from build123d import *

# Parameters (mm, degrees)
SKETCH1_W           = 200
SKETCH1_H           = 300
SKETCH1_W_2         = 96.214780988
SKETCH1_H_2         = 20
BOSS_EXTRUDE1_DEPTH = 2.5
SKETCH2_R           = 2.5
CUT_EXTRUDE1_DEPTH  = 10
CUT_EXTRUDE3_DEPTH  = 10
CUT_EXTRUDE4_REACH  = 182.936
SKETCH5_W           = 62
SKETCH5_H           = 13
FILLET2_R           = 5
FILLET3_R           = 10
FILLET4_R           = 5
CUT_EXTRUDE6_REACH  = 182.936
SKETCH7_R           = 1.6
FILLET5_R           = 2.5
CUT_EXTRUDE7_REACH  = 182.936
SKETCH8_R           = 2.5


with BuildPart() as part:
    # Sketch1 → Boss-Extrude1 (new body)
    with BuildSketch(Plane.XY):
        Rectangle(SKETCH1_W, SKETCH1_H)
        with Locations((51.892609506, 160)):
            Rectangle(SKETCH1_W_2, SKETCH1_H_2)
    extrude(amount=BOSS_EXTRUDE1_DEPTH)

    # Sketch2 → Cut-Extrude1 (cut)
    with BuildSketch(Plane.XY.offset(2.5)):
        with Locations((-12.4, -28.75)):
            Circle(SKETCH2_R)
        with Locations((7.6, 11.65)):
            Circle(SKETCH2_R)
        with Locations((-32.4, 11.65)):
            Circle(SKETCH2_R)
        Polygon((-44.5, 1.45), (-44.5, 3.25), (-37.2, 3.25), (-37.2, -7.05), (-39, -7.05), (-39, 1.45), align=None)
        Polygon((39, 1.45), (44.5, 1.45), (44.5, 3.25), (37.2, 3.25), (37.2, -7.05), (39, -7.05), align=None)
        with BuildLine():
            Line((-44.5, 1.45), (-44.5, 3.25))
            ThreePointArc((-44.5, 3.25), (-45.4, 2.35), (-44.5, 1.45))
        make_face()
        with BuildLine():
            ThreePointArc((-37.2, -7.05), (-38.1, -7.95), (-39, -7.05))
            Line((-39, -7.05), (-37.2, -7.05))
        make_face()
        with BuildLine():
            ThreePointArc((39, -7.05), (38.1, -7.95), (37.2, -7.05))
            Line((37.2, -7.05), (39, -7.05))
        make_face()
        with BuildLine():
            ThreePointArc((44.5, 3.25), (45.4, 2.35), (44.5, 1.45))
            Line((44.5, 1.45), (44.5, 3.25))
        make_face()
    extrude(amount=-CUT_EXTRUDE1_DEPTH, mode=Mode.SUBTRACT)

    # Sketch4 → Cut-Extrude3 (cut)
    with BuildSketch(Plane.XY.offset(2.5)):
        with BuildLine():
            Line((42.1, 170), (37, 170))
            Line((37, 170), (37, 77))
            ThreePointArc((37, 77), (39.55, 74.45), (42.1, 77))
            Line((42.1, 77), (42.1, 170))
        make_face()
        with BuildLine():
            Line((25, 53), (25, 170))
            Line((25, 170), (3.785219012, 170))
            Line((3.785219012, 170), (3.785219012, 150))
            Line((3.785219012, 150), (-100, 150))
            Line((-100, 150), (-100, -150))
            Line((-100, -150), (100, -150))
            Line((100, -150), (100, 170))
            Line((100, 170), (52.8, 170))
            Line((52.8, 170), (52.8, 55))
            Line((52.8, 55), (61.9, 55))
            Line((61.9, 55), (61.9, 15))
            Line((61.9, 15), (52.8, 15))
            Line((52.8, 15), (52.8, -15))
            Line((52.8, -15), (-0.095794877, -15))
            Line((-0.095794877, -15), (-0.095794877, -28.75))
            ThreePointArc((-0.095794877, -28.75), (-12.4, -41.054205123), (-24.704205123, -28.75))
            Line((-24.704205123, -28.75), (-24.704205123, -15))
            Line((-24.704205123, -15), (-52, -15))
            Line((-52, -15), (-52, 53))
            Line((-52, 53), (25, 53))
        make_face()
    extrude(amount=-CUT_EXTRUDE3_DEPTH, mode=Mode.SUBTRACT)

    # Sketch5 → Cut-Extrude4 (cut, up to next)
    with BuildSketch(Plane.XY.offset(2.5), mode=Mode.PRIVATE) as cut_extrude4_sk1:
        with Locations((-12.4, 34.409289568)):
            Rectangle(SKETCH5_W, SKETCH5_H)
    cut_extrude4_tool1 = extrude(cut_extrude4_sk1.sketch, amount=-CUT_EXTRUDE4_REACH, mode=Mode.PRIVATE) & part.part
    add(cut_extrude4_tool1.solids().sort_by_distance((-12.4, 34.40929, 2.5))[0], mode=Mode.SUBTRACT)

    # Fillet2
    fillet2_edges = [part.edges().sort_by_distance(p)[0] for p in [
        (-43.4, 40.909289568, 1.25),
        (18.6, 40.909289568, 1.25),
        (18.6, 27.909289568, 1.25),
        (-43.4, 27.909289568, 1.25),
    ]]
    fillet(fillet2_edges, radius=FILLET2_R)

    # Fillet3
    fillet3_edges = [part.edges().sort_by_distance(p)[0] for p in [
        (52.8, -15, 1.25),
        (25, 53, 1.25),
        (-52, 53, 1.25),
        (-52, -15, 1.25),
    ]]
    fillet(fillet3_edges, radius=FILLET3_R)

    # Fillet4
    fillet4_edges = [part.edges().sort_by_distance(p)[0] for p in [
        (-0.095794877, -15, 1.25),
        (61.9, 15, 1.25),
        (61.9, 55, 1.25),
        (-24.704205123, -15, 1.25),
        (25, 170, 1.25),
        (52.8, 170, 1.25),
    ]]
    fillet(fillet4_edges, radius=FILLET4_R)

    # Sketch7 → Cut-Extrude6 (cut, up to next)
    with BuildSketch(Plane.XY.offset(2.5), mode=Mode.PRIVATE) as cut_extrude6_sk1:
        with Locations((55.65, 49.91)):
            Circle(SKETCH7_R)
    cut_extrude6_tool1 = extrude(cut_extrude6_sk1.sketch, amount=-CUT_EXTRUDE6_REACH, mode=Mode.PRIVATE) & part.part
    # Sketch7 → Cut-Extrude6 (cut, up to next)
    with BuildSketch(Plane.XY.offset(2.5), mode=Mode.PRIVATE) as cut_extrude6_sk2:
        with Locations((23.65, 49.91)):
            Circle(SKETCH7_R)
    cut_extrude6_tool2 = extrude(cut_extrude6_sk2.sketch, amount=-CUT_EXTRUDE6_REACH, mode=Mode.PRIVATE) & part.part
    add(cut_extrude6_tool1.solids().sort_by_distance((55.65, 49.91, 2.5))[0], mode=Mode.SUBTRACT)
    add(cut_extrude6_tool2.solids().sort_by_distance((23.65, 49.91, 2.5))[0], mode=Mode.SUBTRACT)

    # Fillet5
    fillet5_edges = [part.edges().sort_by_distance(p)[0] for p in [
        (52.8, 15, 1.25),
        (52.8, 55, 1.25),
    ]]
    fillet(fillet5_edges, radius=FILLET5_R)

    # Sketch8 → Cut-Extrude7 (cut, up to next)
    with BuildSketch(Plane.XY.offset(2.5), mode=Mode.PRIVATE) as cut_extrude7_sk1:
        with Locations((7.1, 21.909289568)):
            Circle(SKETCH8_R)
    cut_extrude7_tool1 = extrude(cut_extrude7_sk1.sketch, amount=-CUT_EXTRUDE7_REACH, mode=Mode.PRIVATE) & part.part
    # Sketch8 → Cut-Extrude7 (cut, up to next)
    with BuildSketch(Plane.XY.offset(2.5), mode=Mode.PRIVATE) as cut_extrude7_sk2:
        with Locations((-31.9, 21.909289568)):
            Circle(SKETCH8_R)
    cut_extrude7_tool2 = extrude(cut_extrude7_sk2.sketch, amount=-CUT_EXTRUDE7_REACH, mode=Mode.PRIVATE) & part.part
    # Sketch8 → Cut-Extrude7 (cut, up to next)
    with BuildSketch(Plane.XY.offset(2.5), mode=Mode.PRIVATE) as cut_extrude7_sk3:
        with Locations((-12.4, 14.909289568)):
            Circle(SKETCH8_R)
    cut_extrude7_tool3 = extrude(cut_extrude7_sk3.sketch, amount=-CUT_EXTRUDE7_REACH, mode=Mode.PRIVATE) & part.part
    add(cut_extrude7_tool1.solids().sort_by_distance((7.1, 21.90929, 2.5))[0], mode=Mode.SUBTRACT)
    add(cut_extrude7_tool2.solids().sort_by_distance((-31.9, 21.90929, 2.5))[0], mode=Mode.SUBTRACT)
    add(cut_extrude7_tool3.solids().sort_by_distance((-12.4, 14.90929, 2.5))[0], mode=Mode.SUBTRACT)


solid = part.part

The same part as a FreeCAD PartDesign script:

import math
import FreeCAD as App
import Part
import Sketcher
Q = App.Units.Quantity


def edges_at(feature, points):
    """Names of the edges that pass closest to the given points."""
    edges = feature.Shape.Edges
    near = lambda p: min(range(len(edges)), key=lambda i: edges[i].distToShape(Part.Vertex(*p))[0])
    return sorted({f"Edge{near(p) + 1}" for p in points})

doc = App.newDocument("Part")
body = doc.addObject("PartDesign::Body", "Body")

# Sketch on XY plane
sketch1 = body.newObject("Sketcher::SketchObject", "Sketch")
sketch1.AttachmentSupport = (doc.getObject("XY_Plane"), [""])
sketch1.MapMode = "FlatFace"
sketch1.addGeometry(Part.LineSegment(App.Vector(-100, 150, 0), App.Vector(-100, -150, 0)), False)
sketch1.addGeometry(Part.LineSegment(App.Vector(-100, -150, 0), App.Vector(100, -150, 0)), False)
sketch1.addGeometry(Part.LineSegment(App.Vector(100, -150, 0), App.Vector(100, 170, 0)), False)
sketch1.addGeometry(Part.LineSegment(App.Vector(100, 170, 0), App.Vector(3.785219, 170, 0)), False)
sketch1.addGeometry(Part.LineSegment(App.Vector(3.785219, 170, 0), App.Vector(3.785219, 150, 0)), False)
sketch1.addGeometry(Part.LineSegment(App.Vector(3.785219, 150, 0), App.Vector(-100, 150, 0)), False)
sketch1.addConstraint(Sketcher.Constraint("Coincident", 0, 2, 1, 1))
sketch1.addConstraint(Sketcher.Constraint("Coincident", 1, 2, 2, 1))
sketch1.addConstraint(Sketcher.Constraint("Coincident", 2, 2, 3, 1))
sketch1.addConstraint(Sketcher.Constraint("Coincident", 3, 2, 4, 1))
sketch1.addConstraint(Sketcher.Constraint("Coincident", 4, 2, 5, 1))
sketch1.addConstraint(Sketcher.Constraint("Coincident", 5, 2, 0, 1))
sketch1.addConstraint(Sketcher.Constraint("Vertical", 0))
sketch1.addConstraint(Sketcher.Constraint("Horizontal", 1))
sketch1.addConstraint(Sketcher.Constraint("Vertical", 2))
sketch1.addConstraint(Sketcher.Constraint("Horizontal", 3))
sketch1.addConstraint(Sketcher.Constraint("Vertical", 4))
sketch1.addConstraint(Sketcher.Constraint("Horizontal", 5))
sketch1.addConstraint(Sketcher.Constraint("Symmetric", 1, 2, 5, 2, -1, 1))
sketch1.addConstraint(Sketcher.Constraint("DistanceX", 1, 1, 1, 2, Q("200 mm")))
sketch1.addConstraint(Sketcher.Constraint("DistanceY", 0, 2, 0, 1, Q("300 mm")))
sketch1.addConstraint(Sketcher.Constraint("DistanceY", 2, 1, 2, 2, Q("320 mm")))
sketch1.addConstraint(Sketcher.Constraint("DistanceX", 3, 2, 3, 1, Q("96.214781 mm")))
pad1 = body.newObject("PartDesign::Pad", "Pad")
pad1.Profile = sketch1
pad1.Length = 2.5

# Sketch on XY plane
sketch2 = body.newObject("Sketcher::SketchObject", "Sketch001")
sketch2.AttachmentSupport = (doc.getObject("XY_Plane"), [""])
sketch2.MapMode = "FlatFace"
sketch2.AttachmentOffset = App.Placement(App.Vector(0, 0, 2.5), App.Rotation())
sketch2.addGeometry(Part.Circle(App.Vector(-12.4, -28.75, 0), App.Vector(0, 0, 1), 2.5), False)
sketch2.addGeometry(Part.Circle(App.Vector(7.6, 11.65, 0), App.Vector(0, 0, 1), 2.5), False)
sketch2.addGeometry(Part.Circle(App.Vector(-32.4, 11.65, 0), App.Vector(0, 0, 1), 2.5), False)
sketch2.addGeometry(Part.LineSegment(App.Vector(-37.2, 3.25, 0), App.Vector(-44.5, 3.25, 0)), False)
sketch2.addGeometry(Part.ArcOfCircle(Part.Circle(App.Vector(-44.5, 2.35, 0), App.Vector(0, 0, 1), 0.9), math.radians(90), math.radians(270)), False)
sketch2.addGeometry(Part.LineSegment(App.Vector(-44.5, 1.45, 0), App.Vector(-39, 1.45, 0)), False)
sketch2.addGeometry(Part.LineSegment(App.Vector(-39, 1.45, 0), App.Vector(-39, -7.05, 0)), False)
sketch2.addGeometry(Part.ArcOfCircle(Part.Circle(App.Vector(-38.1, -7.05, 0), App.Vector(0, 0, 1), 0.9), math.radians(180), math.radians(360)), False)
sketch2.addGeometry(Part.LineSegment(App.Vector(-37.2, -7.05, 0), App.Vector(-37.2, 3.25, 0)), False)
sketch2.addGeometry(Part.LineSegment(App.Vector(39, 1.45, 0), App.Vector(44.5, 1.45, 0)), False)
sketch2.addGeometry(Part.ArcOfCircle(Part.Circle(App.Vector(44.5, 2.35, 0), App.Vector(0, 0, 1), 0.9), math.radians(-90), math.radians(90)), False)
sketch2.addGeometry(Part.LineSegment(App.Vector(44.5, 3.25, 0), App.Vector(37.2, 3.25, 0)), False)
sketch2.addGeometry(Part.LineSegment(App.Vector(37.2, 3.25, 0), App.Vector(37.2, -7.05, 0)), False)
sketch2.addGeometry(Part.ArcOfCircle(Part.Circle(App.Vector(38.1, -7.05, 0), App.Vector(0, 0, 1), 0.9), math.radians(180), math.radians(360)), False)
sketch2.addGeometry(Part.LineSegment(App.Vector(39, -7.05, 0), App.Vector(39, 1.45, 0)), False)
sketch2.addConstraint(Sketcher.Constraint("Tangent", 3, 2, 4, 1))
sketch2.addConstraint(Sketcher.Constraint("Tangent", 4, 2, 5, 1))
sketch2.addConstraint(Sketcher.Constraint("Coincident", 5, 2, 6, 1))
sketch2.addConstraint(Sketcher.Constraint("Tangent", 6, 2, 7, 1))
sketch2.addConstraint(Sketcher.Constraint("Tangent", 7, 2, 8, 1))
sketch2.addConstraint(Sketcher.Constraint("Coincident", 8, 2, 3, 1))
sketch2.addConstraint(Sketcher.Constraint("Tangent", 9, 2, 10, 1))
sketch2.addConstraint(Sketcher.Constraint("Tangent", 10, 2, 11, 1))
sketch2.addConstraint(Sketcher.Constraint("Coincident", 11, 2, 12, 1))
sketch2.addConstraint(Sketcher.Constraint("Tangent", 12, 2, 13, 1))
sketch2.addConstraint(Sketcher.Constraint("Tangent", 13, 2, 14, 1))
sketch2.addConstraint(Sketcher.Constraint("Coincident", 14, 2, 9, 1))
sketch2.addConstraint(Sketcher.Constraint("Horizontal", 3))
sketch2.addConstraint(Sketcher.Constraint("Horizontal", 5))
sketch2.addConstraint(Sketcher.Constraint("Vertical", 6))
sketch2.addConstraint(Sketcher.Constraint("Vertical", 8))
sketch2.addConstraint(Sketcher.Constraint("Horizontal", 9))
sketch2.addConstraint(Sketcher.Constraint("Horizontal", 11))
sketch2.addConstraint(Sketcher.Constraint("Vertical", 12))
sketch2.addConstraint(Sketcher.Constraint("Vertical", 14))
sketch2.addConstraint(Sketcher.Constraint("Equal", 0, 1))
sketch2.addConstraint(Sketcher.Constraint("Equal", 1, 2))
sketch2.addConstraint(Sketcher.Constraint("Equal", 4, 7))
sketch2.addConstraint(Sketcher.Constraint("Equal", 7, 10))
sketch2.addConstraint(Sketcher.Constraint("Equal", 10, 13))
sketch2.addConstraint(Sketcher.Constraint("Symmetric", 4, 3, 10, 3, -2))
sketch2.addConstraint(Sketcher.Constraint("Symmetric", 7, 3, 13, 3, -2))
sketch2.addConstraint(Sketcher.Constraint("Horizontal", 1, 3, 2, 3))
sketch2.addConstraint(Sketcher.Constraint("Diameter", 0, Q("5 mm")))
sketch2.addConstraint(Sketcher.Constraint("Radius", 4, Q("0.9 mm")))
sketch2.addConstraint(Sketcher.Constraint("DistanceX", 3, 2, 3, 1, Q("7.3 mm")))
sketch2.addConstraint(Sketcher.Constraint("DistanceY", 6, 2, 6, 1, Q("8.5 mm")))
sketch2.addConstraint(Sketcher.Constraint("DistanceX", 5, 2, -1, 1, Q("39 mm")))
sketch2.addConstraint(Sketcher.Constraint("DistanceX", 0, 3, 1, 3, Q("20 mm")))
sketch2.addConstraint(Sketcher.Constraint("DistanceX", 2, 3, 1, 3, Q("40 mm")))
sketch2.addConstraint(Sketcher.Constraint("DistanceY", 0, 3, 3, 2, Q("32 mm")))
sketch2.addConstraint(Sketcher.Constraint("DistanceX", 0, 3, -1, 1, Q("12.4 mm")))
sketch2.addConstraint(Sketcher.Constraint("DistanceY", 0, 3, 1, 3, Q("40.4 mm")))
sketch2.addConstraint(Sketcher.Constraint("DistanceY", 0, 3, -1, 1, Q("28.75 mm")))
pocket1 = body.newObject("PartDesign::Pocket", "Pocket")
pocket1.Profile = sketch2
pocket1.Length = 10

# Sketch on XY plane
sketch3 = body.newObject("Sketcher::SketchObject", "Sketch002")
sketch3.AttachmentSupport = (doc.getObject("XY_Plane"), [""])
sketch3.MapMode = "FlatFace"
sketch3.AttachmentOffset = App.Placement(App.Vector(0, 0, 2.5), App.Rotation())
sketch3.addGeometry(Part.LineSegment(App.Vector(42.1, 170, 0), App.Vector(37, 170, 0)), False)
sketch3.addGeometry(Part.LineSegment(App.Vector(37, 170, 0), App.Vector(37, 77, 0)), False)
sketch3.addGeometry(Part.ArcOfCircle(Part.Circle(App.Vector(39.55, 77, 0), App.Vector(0, 0, 1), 2.55), math.radians(180), math.radians(360)), False)
sketch3.addGeometry(Part.LineSegment(App.Vector(42.1, 77, 0), App.Vector(42.1, 170, 0)), False)
sketch3.addGeometry(Part.LineSegment(App.Vector(25, 53, 0), App.Vector(25, 170, 0)), False)
sketch3.addGeometry(Part.LineSegment(App.Vector(25, 170, 0), App.Vector(3.785219, 170, 0)), False)
sketch3.addGeometry(Part.LineSegment(App.Vector(3.785219, 170, 0), App.Vector(3.785219, 150, 0)), False)
sketch3.addGeometry(Part.LineSegment(App.Vector(3.785219, 150, 0), App.Vector(-100, 150, 0)), False)
sketch3.addGeometry(Part.LineSegment(App.Vector(-100, 150, 0), App.Vector(-100, -150, 0)), False)
sketch3.addGeometry(Part.LineSegment(App.Vector(-100, -150, 0), App.Vector(100, -150, 0)), False)
sketch3.addGeometry(Part.LineSegment(App.Vector(100, -150, 0), App.Vector(100, 170, 0)), False)
sketch3.addGeometry(Part.LineSegment(App.Vector(100, 170, 0), App.Vector(52.8, 170, 0)), False)
sketch3.addGeometry(Part.LineSegment(App.Vector(52.8, 170, 0), App.Vector(52.8, 55, 0)), False)
sketch3.addGeometry(Part.LineSegment(App.Vector(52.8, 55, 0), App.Vector(61.9, 55, 0)), False)
sketch3.addGeometry(Part.LineSegment(App.Vector(61.9, 55, 0), App.Vector(61.9, 15, 0)), False)
sketch3.addGeometry(Part.LineSegment(App.Vector(61.9, 15, 0), App.Vector(52.8, 15, 0)), False)
sketch3.addGeometry(Part.LineSegment(App.Vector(52.8, 15, 0), App.Vector(52.8, -15, 0)), False)
sketch3.addGeometry(Part.LineSegment(App.Vector(52.8, -15, 0), App.Vector(-0.095795, -15, 0)), False)
sketch3.addGeometry(Part.LineSegment(App.Vector(-0.095795, -15, 0), App.Vector(-0.095795, -28.75, 0)), False)
sketch3.addGeometry(Part.ArcOfCircle(Part.Circle(App.Vector(-12.4, -28.75, 0), App.Vector(0, 0, 1), 12.304205), math.radians(180), math.radians(360)), False)
sketch3.addGeometry(Part.LineSegment(App.Vector(-24.704205, -28.75, 0), App.Vector(-24.704205, -15, 0)), False)
sketch3.addGeometry(Part.LineSegment(App.Vector(-24.704205, -15, 0), App.Vector(-52, -15, 0)), False)
sketch3.addGeometry(Part.LineSegment(App.Vector(-52, -15, 0), App.Vector(-52, 53, 0)), False)
sketch3.addGeometry(Part.LineSegment(App.Vector(-52, 53, 0), App.Vector(25, 53, 0)), False)
sketch3.addConstraint(Sketcher.Constraint("Coincident", 0, 2, 1, 1))
sketch3.addConstraint(Sketcher.Constraint("Tangent", 1, 2, 2, 1))
sketch3.addConstraint(Sketcher.Constraint("Tangent", 2, 2, 3, 1))
sketch3.addConstraint(Sketcher.Constraint("Coincident", 3, 2, 0, 1))
sketch3.addConstraint(Sketcher.Constraint("Coincident", 4, 2, 5, 1))
sketch3.addConstraint(Sketcher.Constraint("Coincident", 5, 2, 6, 1))
sketch3.addConstraint(Sketcher.Constraint("Coincident", 6, 2, 7, 1))
sketch3.addConstraint(Sketcher.Constraint("Coincident", 7, 2, 8, 1))
sketch3.addConstraint(Sketcher.Constraint("Coincident", 8, 2, 9, 1))
sketch3.addConstraint(Sketcher.Constraint("Coincident", 9, 2, 10, 1))
sketch3.addConstraint(Sketcher.Constraint("Coincident", 10, 2, 11, 1))
sketch3.addConstraint(Sketcher.Constraint("Coincident", 11, 2, 12, 1))
sketch3.addConstraint(Sketcher.Constraint("Coincident", 12, 2, 13, 1))
sketch3.addConstraint(Sketcher.Constraint("Coincident", 13, 2, 14, 1))
sketch3.addConstraint(Sketcher.Constraint("Coincident", 14, 2, 15, 1))
sketch3.addConstraint(Sketcher.Constraint("Coincident", 15, 2, 16, 1))
sketch3.addConstraint(Sketcher.Constraint("Coincident", 16, 2, 17, 1))
sketch3.addConstraint(Sketcher.Constraint("Coincident", 17, 2, 18, 1))
sketch3.addConstraint(Sketcher.Constraint("Tangent", 18, 2, 19, 2))
sketch3.addConstraint(Sketcher.Constraint("Tangent", 19, 1, 20, 1))
sketch3.addConstraint(Sketcher.Constraint("Coincident", 20, 2, 21, 1))
sketch3.addConstraint(Sketcher.Constraint("Coincident", 21, 2, 22, 1))
sketch3.addConstraint(Sketcher.Constraint("Coincident", 22, 2, 23, 1))
sketch3.addConstraint(Sketcher.Constraint("Coincident", 23, 2, 4, 1))
sketch3.addConstraint(Sketcher.Constraint("Horizontal", 0))
sketch3.addConstraint(Sketcher.Constraint("Vertical", 1))
sketch3.addConstraint(Sketcher.Constraint("Vertical", 3))
sketch3.addConstraint(Sketcher.Constraint("Vertical", 4))
sketch3.addConstraint(Sketcher.Constraint("Horizontal", 5))
sketch3.addConstraint(Sketcher.Constraint("Vertical", 6))
sketch3.addConstraint(Sketcher.Constraint("Horizontal", 7))
sketch3.addConstraint(Sketcher.Constraint("Vertical", 8))
sketch3.addConstraint(Sketcher.Constraint("Horizontal", 9))
sketch3.addConstraint(Sketcher.Constraint("Vertical", 10))
sketch3.addConstraint(Sketcher.Constraint("Horizontal", 11))
sketch3.addConstraint(Sketcher.Constraint("Vertical", 12))
sketch3.addConstraint(Sketcher.Constraint("Horizontal", 13))
sketch3.addConstraint(Sketcher.Constraint("Vertical", 14))
sketch3.addConstraint(Sketcher.Constraint("Horizontal", 15))
sketch3.addConstraint(Sketcher.Constraint("Vertical", 16))
sketch3.addConstraint(Sketcher.Constraint("Horizontal", 17))
sketch3.addConstraint(Sketcher.Constraint("Vertical", 18))
sketch3.addConstraint(Sketcher.Constraint("Vertical", 20))
sketch3.addConstraint(Sketcher.Constraint("Horizontal", 21))
sketch3.addConstraint(Sketcher.Constraint("Vertical", 22))
sketch3.addConstraint(Sketcher.Constraint("Horizontal", 23))
sketch3.addConstraint(Sketcher.Constraint("Symmetric", 7, 2, 9, 2, -1, 1))
sketch3.addConstraint(Sketcher.Constraint("Horizontal", 3, 2, 4, 2))
sketch3.addConstraint(Sketcher.Constraint("Horizontal", 5, 2, 10, 2))
sketch3.addConstraint(Sketcher.Constraint("Horizontal", 17, 2, 20, 2))
sketch3.addConstraint(Sketcher.Constraint("Vertical", 12, 2, 15, 2))
sketch3.addConstraint(Sketcher.Constraint("DistanceX", 9, 1, 9, 2, Q("200 mm")))
sketch3.addConstraint(Sketcher.Constraint("DistanceX", 23, 1, 23, 2, Q("77 mm")))
sketch3.addConstraint(Sketcher.Constraint("DistanceY", 1, 2, 1, 1, Q("93 mm")))
sketch3.addConstraint(Sketcher.Constraint("DistanceY", 4, 1, 4, 2, Q("117 mm")))
sketch3.addConstraint(Sketcher.Constraint("DistanceY", 6, 2, 6, 1, Q("20 mm")))
sketch3.addConstraint(Sketcher.Constraint("DistanceY", 8, 2, 8, 1, Q("300 mm")))
sketch3.addConstraint(Sketcher.Constraint("DistanceY", 12, 2, 12, 1, Q("115 mm")))
sketch3.addConstraint(Sketcher.Constraint("DistanceY", 14, 2, 14, 1, Q("40 mm")))
sketch3.addConstraint(Sketcher.Constraint("DistanceY", 16, 2, 16, 1, Q("30 mm")))
sketch3.addConstraint(Sketcher.Constraint("Radius", 2, Q("2.55 mm")))
sketch3.addConstraint(Sketcher.Constraint("DistanceX", 11, 2, 11, 1, Q("47.2 mm")))
sketch3.addConstraint(Sketcher.Constraint("DistanceX", 13, 1, 13, 2, Q("9.1 mm")))
sketch3.addConstraint(Sketcher.Constraint("DistanceX", -1, 1, 0, 2, Q("37 mm")))
sketch3.addConstraint(Sketcher.Constraint("DistanceX", -1, 1, 4, 2, Q("25 mm")))
sketch3.addConstraint(Sketcher.Constraint("DistanceY", 18, 2, 18, 1, Q("13.75 mm")))
sketch3.addConstraint(Sketcher.Constraint("DistanceX", 19, 3, -1, 1, Q("12.4 mm")))
sketch3.addConstraint(Sketcher.Constraint("Radius", 19, Q("12.304205 mm")))
sketch3.addConstraint(Sketcher.Constraint("DistanceX", 5, 2, 5, 1, Q("21.214781 mm")))
pocket2 = body.newObject("PartDesign::Pocket", "Pocket001")
pocket2.Profile = sketch3
pocket2.Length = 10

# Sketch on XY plane
sketch4 = body.newObject("Sketcher::SketchObject", "Sketch003")
sketch4.AttachmentSupport = (doc.getObject("XY_Plane"), [""])
sketch4.MapMode = "FlatFace"
sketch4.AttachmentOffset = App.Placement(App.Vector(0, 0, 2.5), App.Rotation())
sketch4.addGeometry(Part.LineSegment(App.Vector(-43.4, 40.90929, 0), App.Vector(-43.4, 27.90929, 0)), False)
sketch4.addGeometry(Part.LineSegment(App.Vector(-43.4, 27.90929, 0), App.Vector(18.6, 27.90929, 0)), False)
sketch4.addGeometry(Part.LineSegment(App.Vector(18.6, 27.90929, 0), App.Vector(18.6, 40.90929, 0)), False)
sketch4.addGeometry(Part.LineSegment(App.Vector(18.6, 40.90929, 0), App.Vector(-43.4, 40.90929, 0)), False)
sketch4.addConstraint(Sketcher.Constraint("Coincident", 0, 2, 1, 1))
sketch4.addConstraint(Sketcher.Constraint("Coincident", 1, 2, 2, 1))
sketch4.addConstraint(Sketcher.Constraint("Coincident", 2, 2, 3, 1))
sketch4.addConstraint(Sketcher.Constraint("Coincident", 3, 2, 0, 1))
sketch4.addConstraint(Sketcher.Constraint("Vertical", 0))
sketch4.addConstraint(Sketcher.Constraint("Horizontal", 1))
sketch4.addConstraint(Sketcher.Constraint("Vertical", 2))
sketch4.addConstraint(Sketcher.Constraint("Horizontal", 3))
sketch4.addConstraint(Sketcher.Constraint("DistanceX", 1, 1, 1, 2, Q("62 mm")))
sketch4.addConstraint(Sketcher.Constraint("DistanceY", 0, 2, 0, 1, Q("13 mm")))
sketch4.addConstraint(Sketcher.Constraint("DistanceX", 0, 2, -1, 1, Q("43.4 mm")))
sketch4.addConstraint(Sketcher.Constraint("DistanceY", -1, 1, 0, 2, Q("27.90929 mm")))
pocket3 = body.newObject("PartDesign::Pocket", "Pocket002")
pocket3.Profile = sketch4
pocket3.Type = "UpToFirst"
doc.recompute()

fillet = body.newObject("PartDesign::Fillet", "Fillet")
fillet.Base = (pocket3, edges_at(pocket3, [
    (-43.4, 40.909, 1.25),
    (18.6, 40.909, 1.25),
    (18.6, 27.909, 1.25),
    (-43.4, 27.909, 1.25),
]))
fillet.Radius = 5
doc.recompute()

fillet2 = body.newObject("PartDesign::Fillet", "Fillet001")
fillet2.Base = (fillet, edges_at(fillet, [
    (52.8, -15, 1.25),
    (25, 53, 1.25),
    (-52, 53, 1.25),
    (-52, -15, 1.25),
]))
fillet2.Radius = 10
doc.recompute()

fillet3 = body.newObject("PartDesign::Fillet", "Fillet002")
fillet3.Base = (fillet2, edges_at(fillet2, [
    (-0.096, -15, 1.25),
    (61.9, 15, 1.25),
    (61.9, 55, 1.25),
    (-24.704, -15, 1.25),
    (25, 170, 1.25),
    (52.8, 170, 1.25),
]))
fillet3.Radius = 5

# Sketch on XY plane
sketch5 = body.newObject("Sketcher::SketchObject", "Sketch004")
sketch5.AttachmentSupport = (doc.getObject("XY_Plane"), [""])
sketch5.MapMode = "FlatFace"
sketch5.AttachmentOffset = App.Placement(App.Vector(0, 0, 2.5), App.Rotation())
sketch5.addGeometry(Part.Circle(App.Vector(55.65, 49.91, 0), App.Vector(0, 0, 1), 1.6), False)
sketch5.addConstraint(Sketcher.Constraint("Diameter", 0, Q("3.2 mm")))
sketch5.addConstraint(Sketcher.Constraint("DistanceX", -1, 1, 0, 3, Q("55.65 mm")))
sketch5.addConstraint(Sketcher.Constraint("DistanceY", -1, 1, 0, 3, Q("49.91 mm")))
pocket4 = body.newObject("PartDesign::Pocket", "Pocket003")
pocket4.Profile = sketch5
pocket4.Type = "UpToFirst"

# Sketch on XY plane
sketch6 = body.newObject("Sketcher::SketchObject", "Sketch005")
sketch6.AttachmentSupport = (doc.getObject("XY_Plane"), [""])
sketch6.MapMode = "FlatFace"
sketch6.AttachmentOffset = App.Placement(App.Vector(0, 0, 2.5), App.Rotation())
sketch6.addGeometry(Part.Circle(App.Vector(23.65, 49.91, 0), App.Vector(0, 0, 1), 1.6), False)
sketch6.addConstraint(Sketcher.Constraint("Diameter", 0, Q("3.2 mm")))
sketch6.addConstraint(Sketcher.Constraint("DistanceX", -1, 1, 0, 3, Q("23.65 mm")))
sketch6.addConstraint(Sketcher.Constraint("DistanceY", -1, 1, 0, 3, Q("49.91 mm")))
pocket5 = body.newObject("PartDesign::Pocket", "Pocket004")
pocket5.Profile = sketch6
pocket5.Type = "UpToFirst"
doc.recompute()

fillet4 = body.newObject("PartDesign::Fillet", "Fillet003")
fillet4.Base = (pocket5, edges_at(pocket5, [(52.8, 15, 1.25), (52.8, 55, 1.25)]))
fillet4.Radius = 2.5

# Sketch on XY plane
sketch7 = body.newObject("Sketcher::SketchObject", "Sketch006")
sketch7.AttachmentSupport = (doc.getObject("XY_Plane"), [""])
sketch7.MapMode = "FlatFace"
sketch7.AttachmentOffset = App.Placement(App.Vector(0, 0, 2.5), App.Rotation())
sketch7.addGeometry(Part.Circle(App.Vector(7.1, 21.90929, 0), App.Vector(0, 0, 1), 2.5), False)
sketch7.addConstraint(Sketcher.Constraint("Diameter", 0, Q("5 mm")))
sketch7.addConstraint(Sketcher.Constraint("DistanceX", -1, 1, 0, 3, Q("7.1 mm")))
sketch7.addConstraint(Sketcher.Constraint("DistanceY", -1, 1, 0, 3, Q("21.90929 mm")))
pocket6 = body.newObject("PartDesign::Pocket", "Pocket005")
pocket6.Profile = sketch7
pocket6.Type = "UpToFirst"

# Sketch on XY plane
sketch8 = body.newObject("Sketcher::SketchObject", "Sketch007")
sketch8.AttachmentSupport = (doc.getObject("XY_Plane"), [""])
sketch8.MapMode = "FlatFace"
sketch8.AttachmentOffset = App.Placement(App.Vector(0, 0, 2.5), App.Rotation())
sketch8.addGeometry(Part.Circle(App.Vector(-31.9, 21.90929, 0), App.Vector(0, 0, 1), 2.5), False)
sketch8.addConstraint(Sketcher.Constraint("Diameter", 0, Q("5 mm")))
sketch8.addConstraint(Sketcher.Constraint("DistanceX", 0, 3, -1, 1, Q("31.9 mm")))
sketch8.addConstraint(Sketcher.Constraint("DistanceY", -1, 1, 0, 3, Q("21.90929 mm")))
pocket7 = body.newObject("PartDesign::Pocket", "Pocket006")
pocket7.Profile = sketch8
pocket7.Type = "UpToFirst"

# Sketch on XY plane
sketch9 = body.newObject("Sketcher::SketchObject", "Sketch008")
sketch9.AttachmentSupport = (doc.getObject("XY_Plane"), [""])
sketch9.MapMode = "FlatFace"
sketch9.AttachmentOffset = App.Placement(App.Vector(0, 0, 2.5), App.Rotation())
sketch9.addGeometry(Part.Circle(App.Vector(-12.4, 14.90929, 0), App.Vector(0, 0, 1), 2.5), False)
sketch9.addConstraint(Sketcher.Constraint("Diameter", 0, Q("5 mm")))
sketch9.addConstraint(Sketcher.Constraint("DistanceX", 0, 3, -1, 1, Q("12.4 mm")))
sketch9.addConstraint(Sketcher.Constraint("DistanceY", -1, 1, 0, 3, Q("14.90929 mm")))
pocket8 = body.newObject("PartDesign::Pocket", "Pocket007")
pocket8.Profile = sketch9
pocket8.Type = "UpToFirst"

doc.recompute()
